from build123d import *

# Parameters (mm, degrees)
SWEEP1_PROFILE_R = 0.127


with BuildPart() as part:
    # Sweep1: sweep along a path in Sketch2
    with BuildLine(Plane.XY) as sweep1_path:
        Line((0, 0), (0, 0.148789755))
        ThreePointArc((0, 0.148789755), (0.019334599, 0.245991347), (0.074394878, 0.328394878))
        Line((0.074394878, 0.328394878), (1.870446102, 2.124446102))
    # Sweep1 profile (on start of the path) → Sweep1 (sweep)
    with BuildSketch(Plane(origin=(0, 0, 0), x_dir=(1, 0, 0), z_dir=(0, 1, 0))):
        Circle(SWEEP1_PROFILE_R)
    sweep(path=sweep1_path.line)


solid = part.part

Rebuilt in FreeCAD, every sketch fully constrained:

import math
import FreeCAD as App
import Part
import Sketcher

V = App.Vector
Q = App.Units.Quantity

doc = App.newDocument("Part")
body = doc.addObject("PartDesign::Body", "Body")

# Sketch on XZ plane
sketch1 = body.newObject("Sketcher::SketchObject", "Sketch")
sketch1.AttachmentSupport = (doc.getObject("XZ_Plane"), [""])
sketch1.MapMode = "FlatFace"
sketch1.addGeometry(Part.Circle(V(0, 0, 0), V(0, 0, 1), 0.13), False)
sketch1.addConstraint([
    Sketcher.Constraint("Coincident", 0, 3, -1, 1),
    Sketcher.Constraint("Diameter", 0, Q("0.01 in")),
])

# Sketch on XY plane
sketch2 = body.newObject("Sketcher::SketchObject", "Sketch001")
sketch2.AttachmentSupport = (doc.getObject("XY_Plane"), [""])
sketch2.MapMode = "FlatFace"
sketch2.addGeometry([
    Part.LineSegment(V(0, 0, 0), V(0, 0.15, 0)),
    Part.ArcOfCircle(Part.Circle(V(0.25, 0.15, 0), V(0, 0, 1), 0.25), math.radians(135), math.radians(180)),
    Part.LineSegment(V(0.07, 0.33, 0), V(1.87, 2.12, 0)),
], False)
sketch2.addConstraint([
    Sketcher.Constraint("Tangent", 0, 2, 1, 2),
    Sketcher.Constraint("Tangent", 1, 1, 2, 1),
    Sketcher.Constraint("Vertical", 0),
    Sketcher.Constraint("Coincident", 0, 1, -1, 1),
    Sketcher.Constraint("Radius", 1, Q("0.01 in")),
    Sketcher.Constraint("Angle", 2, Q("45 deg")),
    Sketcher.Constraint("Distance", 2, Q("0.1 in")),
    Sketcher.Constraint("DistanceY", 0, 1, 0, 2, 0.14879),
])
doc.recompute()

additivepipe = body.newObject("PartDesign::AdditivePipe", "AdditivePipe")
additivepipe.Profile = sketch1
additivepipe.Spine = (sketch2, ["Edge1", "Edge2", "Edge3"])

doc.recompute()
